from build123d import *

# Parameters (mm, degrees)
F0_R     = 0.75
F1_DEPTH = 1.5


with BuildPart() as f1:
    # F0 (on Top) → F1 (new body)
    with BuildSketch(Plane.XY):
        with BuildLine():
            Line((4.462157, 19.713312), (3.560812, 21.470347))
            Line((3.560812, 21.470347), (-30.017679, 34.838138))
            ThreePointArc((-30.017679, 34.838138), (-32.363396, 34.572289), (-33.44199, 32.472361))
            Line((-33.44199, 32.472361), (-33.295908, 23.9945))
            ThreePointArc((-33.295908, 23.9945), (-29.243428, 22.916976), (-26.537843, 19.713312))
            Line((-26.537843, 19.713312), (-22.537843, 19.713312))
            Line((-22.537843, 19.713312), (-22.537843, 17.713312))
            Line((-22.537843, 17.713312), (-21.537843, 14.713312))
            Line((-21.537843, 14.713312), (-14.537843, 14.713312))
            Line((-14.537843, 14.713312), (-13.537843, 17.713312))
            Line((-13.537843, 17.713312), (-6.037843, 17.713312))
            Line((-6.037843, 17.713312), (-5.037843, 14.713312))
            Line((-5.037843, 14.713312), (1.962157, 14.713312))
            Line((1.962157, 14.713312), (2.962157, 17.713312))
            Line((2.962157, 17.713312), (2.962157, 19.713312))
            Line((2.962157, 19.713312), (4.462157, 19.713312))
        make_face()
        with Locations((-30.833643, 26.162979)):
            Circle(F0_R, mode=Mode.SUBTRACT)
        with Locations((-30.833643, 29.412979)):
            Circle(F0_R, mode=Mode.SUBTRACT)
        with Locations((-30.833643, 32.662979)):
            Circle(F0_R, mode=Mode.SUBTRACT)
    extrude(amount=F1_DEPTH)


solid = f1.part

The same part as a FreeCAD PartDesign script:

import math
import FreeCAD as App
import Part
import Sketcher
from FreeCAD import Vector

doc = App.newDocument("Part")
body = doc.addObject("PartDesign::Body", "Body")

sketch1 = doc.addObject("Sketcher::SketchObject", "Sketch")
body.addObject(sketch1)
sketch1.AttachmentSupport = (doc.XY_Plane, [""])
sketch1.MapMode = "FlatFace"
sketch1.addGeometry(Part.LineSegment(Vector(4.5, 19.7, 0), Vector(3.6, 21.5, 0)), False)
sketch1.addGeometry(Part.LineSegment(Vector(3.6, 21.5, 0), Vector(-30, 34.8, 0)), False)
sketch1.addGeometry(Part.ArcOfCircle(Part.Circle(Vector(-30.9, 32.5, 0), Vector(0, 0, 1), 2.5), math.radians(68), math.radians(181)), False)
sketch1.addGeometry(Part.LineSegment(Vector(-33.4, 32.5, 0), Vector(-33.3, 24, 0)), False)
sketch1.addGeometry(Part.ArcOfCircle(Part.Circle(Vector(-33, 17, 0), Vector(0, 0, 1), 7), math.radians(23), math.radians(93)), False)
sketch1.addGeometry(Part.LineSegment(Vector(-26.5, 19.7, 0), Vector(-22.5, 19.7, 0)), False)
sketch1.addGeometry(Part.LineSegment(Vector(-22.5, 19.7, 0), Vector(-22.5, 17.7, 0)), False)
sketch1.addGeometry(Part.LineSegment(Vector(-22.5, 17.7, 0), Vector(-21.5, 14.7, 0)), False)
sketch1.addGeometry(Part.LineSegment(Vector(-21.5, 14.7, 0), Vector(-14.5, 14.7, 0)), False)
sketch1.addGeometry(Part.LineSegment(Vector(-14.5, 14.7, 0), Vector(-13.5, 17.7, 0)), False)
sketch1.addGeometry(Part.LineSegment(Vector(-13.5, 17.7, 0), Vector(-6, 17.7, 0)), False)
sketch1.addGeometry(Part.LineSegment(Vector(-6, 17.7, 0), Vector(-5, 14.7, 0)), False)
sketch1.addGeometry(Part.LineSegment(Vector(-5, 14.7, 0), Vector(2, 14.7, 0)), False)
sketch1.addGeometry(Part.LineSegment(Vector(2, 14.7, 0), Vector(3, 17.7, 0)), False)
sketch1.addGeometry(Part.LineSegment(Vector(3, 17.7, 0), Vector(3, 19.7, 0)), False)
sketch1.addGeometry(Part.LineSegment(Vector(3, 19.7, 0), Vector(4.5, 19.7, 0)), False)
sketch1.addGeometry(Part.Circle(Vector(-30.8, 26.2, 0), Vector(0, 0, 1), 0.8), False)
sketch1.addGeometry(Part.Circle(Vector(-30.8, 29.4, 0), Vector(0, 0, 1), 0.8), False)
sketch1.addGeometry(Part.Circle(Vector(-30.8, 32.7, 0), Vector(0, 0, 1), 0.8), False)
sketch1.addConstraint(Sketcher.Constraint("Coincident", 0, 2, 1, 1))
sketch1.addConstraint(Sketcher.Constraint("Tangent", 1, 2, 2, 1))
sketch1.addConstraint(Sketcher.Constraint("Tangent", 2, 2, 3, 1))
sketch1.addConstraint(Sketcher.Constraint("Coincident", 3, 2, 4, 2))
sketch1.addConstraint(Sketcher.Constraint("Coincident", 4, 1, 5, 1))
sketch1.addConstraint(Sketcher.Constraint("Coincident", 5, 2, 6, 1))
sketch1.addConstraint(Sketcher.Constraint("Coincident", 6, 2, 7, 1))
sketch1.addConstraint(Sketcher.Constraint("Coincident", 7, 2, 8, 1))
sketch1.addConstraint(Sketcher.Constraint("Coincident", 8, 2, 9, 1))
sketch1.addConstraint(Sketcher.Constraint("Coincident", 9, 2, 10, 1))
sketch1.addConstraint(Sketcher.Constraint("Coincident", 10, 2, 11, 1))
sketch1.addConstraint(Sketcher.Constraint("Coincident", 11, 2, 12, 1))
sketch1.addConstraint(Sketcher.Constraint("Coincident", 12, 2, 13, 1))
sketch1.addConstraint(Sketcher.Constraint("Coincident", 13, 2, 14, 1))
sketch1.addConstraint(Sketcher.Constraint("Coincident", 14, 2, 15, 1))
sketch1.addConstraint(Sketcher.Constraint("Coincident", 15, 2, 0, 1))
sketch1.addConstraint(Sketcher.Constraint("Horizontal", 5))
sketch1.addConstraint(Sketcher.Constraint("Vertical", 6))
sketch1.addConstraint(Sketcher.Constraint("Horizontal", 8))
sketch1.addConstraint(Sketcher.Constraint("Horizontal", 10))
sketch1.addConstraint(Sketcher.Constraint("Horizontal", 12))
sketch1.addConstraint(Sketcher.Constraint("Vertical", 14))
sketch1.addConstraint(Sketcher.Constraint("Horizontal", 15))
sketch1.addConstraint(Sketcher.Constraint("Equal", 16, 17))
sketch1.addConstraint(Sketcher.Constraint("Equal", 17, 18))
sketch1.addConstraint(Sketcher.Constraint("Parallel", 7, 11))
sketch1.addConstraint(Sketcher.Constraint("Parallel", 9, 13))
sketch1.addConstraint(Sketcher.Constraint("Horizontal", 6, 2, 9, 2))
sketch1.addConstraint(Sketcher.Constraint("Horizontal", 8, 2, 11, 2))
sketch1.addConstraint(Sketcher.Constraint("Horizontal", 10, 2, 13, 2))
sketch1.addConstraint(Sketcher.Constraint("Horizontal", 5, 2, 14, 2))
sketch1.addConstraint(Sketcher.Constraint("Vertical", 16, 3, 17, 3))
sketch1.addConstraint(Sketcher.Constraint("Vertical", 17, 3, 18, 3))
sketch1.addConstraint(Sketcher.Constraint("Equal", 8, 12))
sketch1.addConstraint(Sketcher.Constraint("Equal", 7, 9))
sketch1.addConstraint(Sketcher.Constraint("Diameter", 16, 1.5))
sketch1.addConstraint(Sketcher.Constraint("Radius", 2, 2.5))
sketch1.addConstraint(Sketcher.Constraint("DistanceX", 5, 1, 5, 2, 4.0))
sketch1.addConstraint(Sketcher.Constraint("DistanceX", 8, 1, 8, 2, 7.0))
sketch1.addConstraint(Sketcher.Constraint("DistanceY", 6, 2, 6, 1, 2.0))
sketch1.addConstraint(Sketcher.Constraint("DistanceX", 10, 1, 10, 2, 7.5))
sketch1.addConstraint(Sketcher.Constraint("DistanceX", 15, 1, 15, 2, 1.5))
sketch1.addConstraint(Sketcher.Constraint("DistanceX", 6, 2, 7, 2, 1.0))
sketch1.addConstraint(Sketcher.Constraint("DistanceY", 7, 2, 6, 2, 3.0))
sketch1.addConstraint(Sketcher.Constraint("DistanceY", 16, 3, 18, 3, 6.5))
sketch1.addConstraint(Sketcher.Constraint("DistanceY", 16, 3, 17, 3, 3.25))
sketch1.addConstraint(Sketcher.Constraint("Radius", 4, 6.986338))
sketch1.addConstraint(Sketcher.Constraint("DistanceY", -1, 1, 3, 2, 23.9945))
sketch1.addConstraint(Sketcher.Constraint("DistanceY", 4, 3, 4, 1, 2.698101))
sketch1.addConstraint(Sketcher.Constraint("DistanceX", 16, 3, 4, 1, 4.2958))
sketch1.addConstraint(Sketcher.Constraint("Distance", 0, 1.974739))
sketch1.addConstraint(Sketcher.Constraint("Distance", 3, 8.479119))
sketch1.addConstraint(Sketcher.Constraint("DistanceX", 2, 3, -1, 1, 30.942361))
sketch1.addConstraint(Sketcher.Constraint("DistanceY", -1, 1, 4, 3, 17.015211))
sketch1.addConstraint(Sketcher.Constraint("DistanceY", -1, 1, 16, 3, 26.162979))
sketch1.addConstraint(Sketcher.Constraint("DistanceX", -1, 1, 0, 2, 3.560812))
sketch1.addConstraint(Sketcher.Constraint("DistanceX", 1, 2, -1, 1, 30.017679))
pad1 = doc.addObject("PartDesign::Pad", "Pad")
body.addObject(pad1)
pad1.Profile = sketch1
pad1.Length = 1.5

doc.recompute()
